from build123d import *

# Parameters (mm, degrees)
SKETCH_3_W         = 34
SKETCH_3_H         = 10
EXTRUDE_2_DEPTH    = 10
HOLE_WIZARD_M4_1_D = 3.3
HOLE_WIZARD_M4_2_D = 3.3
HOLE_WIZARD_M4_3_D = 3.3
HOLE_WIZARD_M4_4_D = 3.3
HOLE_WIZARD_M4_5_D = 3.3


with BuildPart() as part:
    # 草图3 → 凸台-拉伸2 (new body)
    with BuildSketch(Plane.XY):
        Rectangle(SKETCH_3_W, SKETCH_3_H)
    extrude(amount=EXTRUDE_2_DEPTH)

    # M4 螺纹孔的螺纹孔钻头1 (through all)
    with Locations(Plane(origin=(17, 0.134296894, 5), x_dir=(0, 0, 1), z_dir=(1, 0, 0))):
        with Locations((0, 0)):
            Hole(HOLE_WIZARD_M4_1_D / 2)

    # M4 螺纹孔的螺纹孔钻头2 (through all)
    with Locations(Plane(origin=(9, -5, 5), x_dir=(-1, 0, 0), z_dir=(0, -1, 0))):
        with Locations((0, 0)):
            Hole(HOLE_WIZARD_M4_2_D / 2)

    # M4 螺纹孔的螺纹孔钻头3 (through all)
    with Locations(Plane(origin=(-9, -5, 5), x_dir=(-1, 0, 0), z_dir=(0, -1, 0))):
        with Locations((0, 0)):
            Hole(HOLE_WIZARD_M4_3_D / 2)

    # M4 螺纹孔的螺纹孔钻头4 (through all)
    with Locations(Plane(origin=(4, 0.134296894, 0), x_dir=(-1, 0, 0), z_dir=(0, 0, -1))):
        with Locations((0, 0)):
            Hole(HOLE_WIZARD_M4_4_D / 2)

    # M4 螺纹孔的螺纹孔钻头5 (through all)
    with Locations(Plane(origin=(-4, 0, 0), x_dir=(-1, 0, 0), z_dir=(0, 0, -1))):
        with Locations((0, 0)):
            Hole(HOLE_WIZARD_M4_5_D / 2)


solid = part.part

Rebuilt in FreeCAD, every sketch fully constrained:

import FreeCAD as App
import Part
import Sketcher

doc = App.newDocument("Part")
body = doc.addObject("PartDesign::Body", "Body")

sketch1 = doc.addObject("Sketcher::SketchObject", "Sketch")
body.addObject(sketch1)
sketch1.AttachmentSupport = (doc.XY_Plane, [""])
sketch1.MapMode = "FlatFace"
sketch1.addGeometry(Part.LineSegment(App.Vector(-17, 5, 0), App.Vector(-17, -5, 0)), False)
sketch1.addGeometry(Part.LineSegment(App.Vector(-17, -5, 0), App.Vector(17, -5, 0)), False)
sketch1.addGeometry(Part.LineSegment(App.Vector(17, -5, 0), App.Vector(17, 5, 0)), False)
sketch1.addGeometry(Part.LineSegment(App.Vector(17, 5, 0), App.Vector(-17, 5, 0)), False)
sketch1.addConstraint(Sketcher.Constraint("Coincident", 0, 2, 1, 1))
sketch1.addConstraint(Sketcher.Constraint("Coincident", 1, 2, 2, 1))
sketch1.addConstraint(Sketcher.Constraint("Coincident", 2, 2, 3, 1))
sketch1.addConstraint(Sketcher.Constraint("Coincident", 3, 2, 0, 1))
sketch1.addConstraint(Sketcher.Constraint("Vertical", 0))
sketch1.addConstraint(Sketcher.Constraint("Horizontal", 1))
sketch1.addConstraint(Sketcher.Constraint("Vertical", 2))
sketch1.addConstraint(Sketcher.Constraint("Horizontal", 3))
sketch1.addConstraint(Sketcher.Constraint("Symmetric", 0, 2, 2, 2, -1, 1))
sketch1.addConstraint(Sketcher.Constraint("DistanceX", 1, 1, 1, 2, 34.0))
sketch1.addConstraint(Sketcher.Constraint("DistanceY", 0, 2, 0, 1, 10.0))
pad1 = doc.addObject("PartDesign::Pad", "Pad")
body.addObject(pad1)
pad1.Profile = sketch1
pad1.Length = 10

sketch2 = doc.addObject("Sketcher::SketchObject", "Sketch001")
body.addObject(sketch2)
sketch2.AttachmentSupport = (doc.YZ_Plane, [""])
sketch2.MapMode = "FlatFace"
sketch2.AttachmentOffset = App.Placement(App.Vector(0, 0, 17), App.Rotation())
sketch2.addGeometry(Part.Circle(App.Vector(0.134297, 5, 0), App.Vector(0, 0, 1), 1.65), False)
sketch2.addConstraint(Sketcher.Constraint("Diameter", 0, 3.3))
sketch2.addConstraint(Sketcher.Constraint("DistanceY", -1, 1, 0, 3, 5.0))
sketch2.addConstraint(Sketcher.Constraint("DistanceX", -1, 1, 0, 3, 0.134297))
doc.recompute()
hole = doc.addObject("PartDesign::Hole", "Hole")
body.addObject(hole)
hole.Profile = sketch2
hole.ThreadType = "None"
hole.Diameter = 3.3
hole.DepthType = "ThroughAll"

sketch3 = doc.addObject("Sketcher::SketchObject", "Sketch002")
body.addObject(sketch3)
sketch3.AttachmentSupport = (doc.XZ_Plane, [""])
sketch3.MapMode = "FlatFace"
sketch3.AttachmentOffset = App.Placement(App.Vector(0, 0, 5), App.Rotation())
sketch3.addGeometry(Part.Circle(App.Vector(9, 5, 0), App.Vector(0, 0, 1), 1.65), False)
sketch3.addConstraint(Sketcher.Constraint("Diameter", 0, 3.3))
sketch3.addConstraint(Sketcher.Constraint("DistanceX", -1, 1, 0, 3, 9.0))
sketch3.addConstraint(Sketcher.Constraint("DistanceY", -1, 1, 0, 3, 5.0))
doc.recompute()
hole2 = doc.addObject("PartDesign::Hole", "Hole001")
body.addObject(hole2)
hole2.Profile = sketch3
hole2.ThreadType = "None"
hole2.Diameter = 3.3
hole2.DepthType = "ThroughAll"

sketch4 = doc.addObject("Sketcher::SketchObject", "Sketch003")
body.addObject(sketch4)
sketch4.AttachmentSupport = (doc.XZ_Plane, [""])
sketch4.MapMode = "FlatFace"
sketch4.AttachmentOffset = App.Placement(App.Vector(0, 0, 5), App.Rotation())
sketch4.addGeometry(Part.Circle(App.Vector(-9, 5, 0), App.Vector(0, 0, 1), 1.65), False)
sketch4.addConstraint(Sketcher.Constraint("Diameter", 0, 3.3))
sketch4.addConstraint(Sketcher.Constraint("DistanceX", 0, 3, -1, 1, 9.0))
sketch4.addConstraint(Sketcher.Constraint("DistanceY", -1, 1, 0, 3, 5.0))
doc.recompute()
hole3 = doc.addObject("PartDesign::Hole", "Hole002")
body.addObject(hole3)
hole3.Profile = sketch4
hole3.ThreadType = "None"
hole3.Diameter = 3.3
hole3.DepthType = "ThroughAll"

sketch5 = doc.addObject("Sketcher::SketchObject", "Sketch004")
body.addObject(sketch5)
sketch5.AttachmentSupport = (doc.XY_Plane, [""])
sketch5.MapMode = "FlatFace"
sketch5.addGeometry(Part.Circle(App.Vector(4, 0.134297, 0), App.Vector(0, 0, 1), 1.65), False)
sketch5.addConstraint(Sketcher.Constraint("Diameter", 0, 3.3))
sketch5.addConstraint(Sketcher.Constraint("DistanceX", -1, 1, 0, 3, 4.0))
sketch5.addConstraint(Sketcher.Constraint("DistanceY", -1, 1, 0, 3, 0.134297))
doc.recompute()
hole4 = doc.addObject("PartDesign::Hole", "Hole003")
body.addObject(hole4)
hole4.Profile = sketch5
hole4.ThreadType = "None"
hole4.Diameter = 3.3
hole4.DepthType = "ThroughAll"
hole4.Reversed = True

sketch6 = doc.addObject("Sketcher::SketchObject", "Sketch005")
body.addObject(sketch6)
sketch6.AttachmentSupport = (doc.XY_Plane, [""])
sketch6.MapMode = "FlatFace"
sketch6.addGeometry(Part.Circle(App.Vector(-4, 0, 0), App.Vector(0, 0, 1), 1.65), False)
sketch6.addConstraint(Sketcher.Constraint("PointOnObject", 0, 3, -1))
sketch6.addConstraint(Sketcher.Constraint("Diameter", 0, 3.3))
sketch6.addConstraint(Sketcher.Constraint("DistanceX", 0, 3, -1, 1, 4.0))
doc.recompute()
hole5 = doc.addObject("PartDesign::Hole", "Hole004")
body.addObject(hole5)
hole5.Profile = sketch6
hole5.ThreadType = "None"
hole5.Diameter = 3.3
hole5.DepthType = "ThroughAll"
hole5.Reversed = True

doc.recompute()
